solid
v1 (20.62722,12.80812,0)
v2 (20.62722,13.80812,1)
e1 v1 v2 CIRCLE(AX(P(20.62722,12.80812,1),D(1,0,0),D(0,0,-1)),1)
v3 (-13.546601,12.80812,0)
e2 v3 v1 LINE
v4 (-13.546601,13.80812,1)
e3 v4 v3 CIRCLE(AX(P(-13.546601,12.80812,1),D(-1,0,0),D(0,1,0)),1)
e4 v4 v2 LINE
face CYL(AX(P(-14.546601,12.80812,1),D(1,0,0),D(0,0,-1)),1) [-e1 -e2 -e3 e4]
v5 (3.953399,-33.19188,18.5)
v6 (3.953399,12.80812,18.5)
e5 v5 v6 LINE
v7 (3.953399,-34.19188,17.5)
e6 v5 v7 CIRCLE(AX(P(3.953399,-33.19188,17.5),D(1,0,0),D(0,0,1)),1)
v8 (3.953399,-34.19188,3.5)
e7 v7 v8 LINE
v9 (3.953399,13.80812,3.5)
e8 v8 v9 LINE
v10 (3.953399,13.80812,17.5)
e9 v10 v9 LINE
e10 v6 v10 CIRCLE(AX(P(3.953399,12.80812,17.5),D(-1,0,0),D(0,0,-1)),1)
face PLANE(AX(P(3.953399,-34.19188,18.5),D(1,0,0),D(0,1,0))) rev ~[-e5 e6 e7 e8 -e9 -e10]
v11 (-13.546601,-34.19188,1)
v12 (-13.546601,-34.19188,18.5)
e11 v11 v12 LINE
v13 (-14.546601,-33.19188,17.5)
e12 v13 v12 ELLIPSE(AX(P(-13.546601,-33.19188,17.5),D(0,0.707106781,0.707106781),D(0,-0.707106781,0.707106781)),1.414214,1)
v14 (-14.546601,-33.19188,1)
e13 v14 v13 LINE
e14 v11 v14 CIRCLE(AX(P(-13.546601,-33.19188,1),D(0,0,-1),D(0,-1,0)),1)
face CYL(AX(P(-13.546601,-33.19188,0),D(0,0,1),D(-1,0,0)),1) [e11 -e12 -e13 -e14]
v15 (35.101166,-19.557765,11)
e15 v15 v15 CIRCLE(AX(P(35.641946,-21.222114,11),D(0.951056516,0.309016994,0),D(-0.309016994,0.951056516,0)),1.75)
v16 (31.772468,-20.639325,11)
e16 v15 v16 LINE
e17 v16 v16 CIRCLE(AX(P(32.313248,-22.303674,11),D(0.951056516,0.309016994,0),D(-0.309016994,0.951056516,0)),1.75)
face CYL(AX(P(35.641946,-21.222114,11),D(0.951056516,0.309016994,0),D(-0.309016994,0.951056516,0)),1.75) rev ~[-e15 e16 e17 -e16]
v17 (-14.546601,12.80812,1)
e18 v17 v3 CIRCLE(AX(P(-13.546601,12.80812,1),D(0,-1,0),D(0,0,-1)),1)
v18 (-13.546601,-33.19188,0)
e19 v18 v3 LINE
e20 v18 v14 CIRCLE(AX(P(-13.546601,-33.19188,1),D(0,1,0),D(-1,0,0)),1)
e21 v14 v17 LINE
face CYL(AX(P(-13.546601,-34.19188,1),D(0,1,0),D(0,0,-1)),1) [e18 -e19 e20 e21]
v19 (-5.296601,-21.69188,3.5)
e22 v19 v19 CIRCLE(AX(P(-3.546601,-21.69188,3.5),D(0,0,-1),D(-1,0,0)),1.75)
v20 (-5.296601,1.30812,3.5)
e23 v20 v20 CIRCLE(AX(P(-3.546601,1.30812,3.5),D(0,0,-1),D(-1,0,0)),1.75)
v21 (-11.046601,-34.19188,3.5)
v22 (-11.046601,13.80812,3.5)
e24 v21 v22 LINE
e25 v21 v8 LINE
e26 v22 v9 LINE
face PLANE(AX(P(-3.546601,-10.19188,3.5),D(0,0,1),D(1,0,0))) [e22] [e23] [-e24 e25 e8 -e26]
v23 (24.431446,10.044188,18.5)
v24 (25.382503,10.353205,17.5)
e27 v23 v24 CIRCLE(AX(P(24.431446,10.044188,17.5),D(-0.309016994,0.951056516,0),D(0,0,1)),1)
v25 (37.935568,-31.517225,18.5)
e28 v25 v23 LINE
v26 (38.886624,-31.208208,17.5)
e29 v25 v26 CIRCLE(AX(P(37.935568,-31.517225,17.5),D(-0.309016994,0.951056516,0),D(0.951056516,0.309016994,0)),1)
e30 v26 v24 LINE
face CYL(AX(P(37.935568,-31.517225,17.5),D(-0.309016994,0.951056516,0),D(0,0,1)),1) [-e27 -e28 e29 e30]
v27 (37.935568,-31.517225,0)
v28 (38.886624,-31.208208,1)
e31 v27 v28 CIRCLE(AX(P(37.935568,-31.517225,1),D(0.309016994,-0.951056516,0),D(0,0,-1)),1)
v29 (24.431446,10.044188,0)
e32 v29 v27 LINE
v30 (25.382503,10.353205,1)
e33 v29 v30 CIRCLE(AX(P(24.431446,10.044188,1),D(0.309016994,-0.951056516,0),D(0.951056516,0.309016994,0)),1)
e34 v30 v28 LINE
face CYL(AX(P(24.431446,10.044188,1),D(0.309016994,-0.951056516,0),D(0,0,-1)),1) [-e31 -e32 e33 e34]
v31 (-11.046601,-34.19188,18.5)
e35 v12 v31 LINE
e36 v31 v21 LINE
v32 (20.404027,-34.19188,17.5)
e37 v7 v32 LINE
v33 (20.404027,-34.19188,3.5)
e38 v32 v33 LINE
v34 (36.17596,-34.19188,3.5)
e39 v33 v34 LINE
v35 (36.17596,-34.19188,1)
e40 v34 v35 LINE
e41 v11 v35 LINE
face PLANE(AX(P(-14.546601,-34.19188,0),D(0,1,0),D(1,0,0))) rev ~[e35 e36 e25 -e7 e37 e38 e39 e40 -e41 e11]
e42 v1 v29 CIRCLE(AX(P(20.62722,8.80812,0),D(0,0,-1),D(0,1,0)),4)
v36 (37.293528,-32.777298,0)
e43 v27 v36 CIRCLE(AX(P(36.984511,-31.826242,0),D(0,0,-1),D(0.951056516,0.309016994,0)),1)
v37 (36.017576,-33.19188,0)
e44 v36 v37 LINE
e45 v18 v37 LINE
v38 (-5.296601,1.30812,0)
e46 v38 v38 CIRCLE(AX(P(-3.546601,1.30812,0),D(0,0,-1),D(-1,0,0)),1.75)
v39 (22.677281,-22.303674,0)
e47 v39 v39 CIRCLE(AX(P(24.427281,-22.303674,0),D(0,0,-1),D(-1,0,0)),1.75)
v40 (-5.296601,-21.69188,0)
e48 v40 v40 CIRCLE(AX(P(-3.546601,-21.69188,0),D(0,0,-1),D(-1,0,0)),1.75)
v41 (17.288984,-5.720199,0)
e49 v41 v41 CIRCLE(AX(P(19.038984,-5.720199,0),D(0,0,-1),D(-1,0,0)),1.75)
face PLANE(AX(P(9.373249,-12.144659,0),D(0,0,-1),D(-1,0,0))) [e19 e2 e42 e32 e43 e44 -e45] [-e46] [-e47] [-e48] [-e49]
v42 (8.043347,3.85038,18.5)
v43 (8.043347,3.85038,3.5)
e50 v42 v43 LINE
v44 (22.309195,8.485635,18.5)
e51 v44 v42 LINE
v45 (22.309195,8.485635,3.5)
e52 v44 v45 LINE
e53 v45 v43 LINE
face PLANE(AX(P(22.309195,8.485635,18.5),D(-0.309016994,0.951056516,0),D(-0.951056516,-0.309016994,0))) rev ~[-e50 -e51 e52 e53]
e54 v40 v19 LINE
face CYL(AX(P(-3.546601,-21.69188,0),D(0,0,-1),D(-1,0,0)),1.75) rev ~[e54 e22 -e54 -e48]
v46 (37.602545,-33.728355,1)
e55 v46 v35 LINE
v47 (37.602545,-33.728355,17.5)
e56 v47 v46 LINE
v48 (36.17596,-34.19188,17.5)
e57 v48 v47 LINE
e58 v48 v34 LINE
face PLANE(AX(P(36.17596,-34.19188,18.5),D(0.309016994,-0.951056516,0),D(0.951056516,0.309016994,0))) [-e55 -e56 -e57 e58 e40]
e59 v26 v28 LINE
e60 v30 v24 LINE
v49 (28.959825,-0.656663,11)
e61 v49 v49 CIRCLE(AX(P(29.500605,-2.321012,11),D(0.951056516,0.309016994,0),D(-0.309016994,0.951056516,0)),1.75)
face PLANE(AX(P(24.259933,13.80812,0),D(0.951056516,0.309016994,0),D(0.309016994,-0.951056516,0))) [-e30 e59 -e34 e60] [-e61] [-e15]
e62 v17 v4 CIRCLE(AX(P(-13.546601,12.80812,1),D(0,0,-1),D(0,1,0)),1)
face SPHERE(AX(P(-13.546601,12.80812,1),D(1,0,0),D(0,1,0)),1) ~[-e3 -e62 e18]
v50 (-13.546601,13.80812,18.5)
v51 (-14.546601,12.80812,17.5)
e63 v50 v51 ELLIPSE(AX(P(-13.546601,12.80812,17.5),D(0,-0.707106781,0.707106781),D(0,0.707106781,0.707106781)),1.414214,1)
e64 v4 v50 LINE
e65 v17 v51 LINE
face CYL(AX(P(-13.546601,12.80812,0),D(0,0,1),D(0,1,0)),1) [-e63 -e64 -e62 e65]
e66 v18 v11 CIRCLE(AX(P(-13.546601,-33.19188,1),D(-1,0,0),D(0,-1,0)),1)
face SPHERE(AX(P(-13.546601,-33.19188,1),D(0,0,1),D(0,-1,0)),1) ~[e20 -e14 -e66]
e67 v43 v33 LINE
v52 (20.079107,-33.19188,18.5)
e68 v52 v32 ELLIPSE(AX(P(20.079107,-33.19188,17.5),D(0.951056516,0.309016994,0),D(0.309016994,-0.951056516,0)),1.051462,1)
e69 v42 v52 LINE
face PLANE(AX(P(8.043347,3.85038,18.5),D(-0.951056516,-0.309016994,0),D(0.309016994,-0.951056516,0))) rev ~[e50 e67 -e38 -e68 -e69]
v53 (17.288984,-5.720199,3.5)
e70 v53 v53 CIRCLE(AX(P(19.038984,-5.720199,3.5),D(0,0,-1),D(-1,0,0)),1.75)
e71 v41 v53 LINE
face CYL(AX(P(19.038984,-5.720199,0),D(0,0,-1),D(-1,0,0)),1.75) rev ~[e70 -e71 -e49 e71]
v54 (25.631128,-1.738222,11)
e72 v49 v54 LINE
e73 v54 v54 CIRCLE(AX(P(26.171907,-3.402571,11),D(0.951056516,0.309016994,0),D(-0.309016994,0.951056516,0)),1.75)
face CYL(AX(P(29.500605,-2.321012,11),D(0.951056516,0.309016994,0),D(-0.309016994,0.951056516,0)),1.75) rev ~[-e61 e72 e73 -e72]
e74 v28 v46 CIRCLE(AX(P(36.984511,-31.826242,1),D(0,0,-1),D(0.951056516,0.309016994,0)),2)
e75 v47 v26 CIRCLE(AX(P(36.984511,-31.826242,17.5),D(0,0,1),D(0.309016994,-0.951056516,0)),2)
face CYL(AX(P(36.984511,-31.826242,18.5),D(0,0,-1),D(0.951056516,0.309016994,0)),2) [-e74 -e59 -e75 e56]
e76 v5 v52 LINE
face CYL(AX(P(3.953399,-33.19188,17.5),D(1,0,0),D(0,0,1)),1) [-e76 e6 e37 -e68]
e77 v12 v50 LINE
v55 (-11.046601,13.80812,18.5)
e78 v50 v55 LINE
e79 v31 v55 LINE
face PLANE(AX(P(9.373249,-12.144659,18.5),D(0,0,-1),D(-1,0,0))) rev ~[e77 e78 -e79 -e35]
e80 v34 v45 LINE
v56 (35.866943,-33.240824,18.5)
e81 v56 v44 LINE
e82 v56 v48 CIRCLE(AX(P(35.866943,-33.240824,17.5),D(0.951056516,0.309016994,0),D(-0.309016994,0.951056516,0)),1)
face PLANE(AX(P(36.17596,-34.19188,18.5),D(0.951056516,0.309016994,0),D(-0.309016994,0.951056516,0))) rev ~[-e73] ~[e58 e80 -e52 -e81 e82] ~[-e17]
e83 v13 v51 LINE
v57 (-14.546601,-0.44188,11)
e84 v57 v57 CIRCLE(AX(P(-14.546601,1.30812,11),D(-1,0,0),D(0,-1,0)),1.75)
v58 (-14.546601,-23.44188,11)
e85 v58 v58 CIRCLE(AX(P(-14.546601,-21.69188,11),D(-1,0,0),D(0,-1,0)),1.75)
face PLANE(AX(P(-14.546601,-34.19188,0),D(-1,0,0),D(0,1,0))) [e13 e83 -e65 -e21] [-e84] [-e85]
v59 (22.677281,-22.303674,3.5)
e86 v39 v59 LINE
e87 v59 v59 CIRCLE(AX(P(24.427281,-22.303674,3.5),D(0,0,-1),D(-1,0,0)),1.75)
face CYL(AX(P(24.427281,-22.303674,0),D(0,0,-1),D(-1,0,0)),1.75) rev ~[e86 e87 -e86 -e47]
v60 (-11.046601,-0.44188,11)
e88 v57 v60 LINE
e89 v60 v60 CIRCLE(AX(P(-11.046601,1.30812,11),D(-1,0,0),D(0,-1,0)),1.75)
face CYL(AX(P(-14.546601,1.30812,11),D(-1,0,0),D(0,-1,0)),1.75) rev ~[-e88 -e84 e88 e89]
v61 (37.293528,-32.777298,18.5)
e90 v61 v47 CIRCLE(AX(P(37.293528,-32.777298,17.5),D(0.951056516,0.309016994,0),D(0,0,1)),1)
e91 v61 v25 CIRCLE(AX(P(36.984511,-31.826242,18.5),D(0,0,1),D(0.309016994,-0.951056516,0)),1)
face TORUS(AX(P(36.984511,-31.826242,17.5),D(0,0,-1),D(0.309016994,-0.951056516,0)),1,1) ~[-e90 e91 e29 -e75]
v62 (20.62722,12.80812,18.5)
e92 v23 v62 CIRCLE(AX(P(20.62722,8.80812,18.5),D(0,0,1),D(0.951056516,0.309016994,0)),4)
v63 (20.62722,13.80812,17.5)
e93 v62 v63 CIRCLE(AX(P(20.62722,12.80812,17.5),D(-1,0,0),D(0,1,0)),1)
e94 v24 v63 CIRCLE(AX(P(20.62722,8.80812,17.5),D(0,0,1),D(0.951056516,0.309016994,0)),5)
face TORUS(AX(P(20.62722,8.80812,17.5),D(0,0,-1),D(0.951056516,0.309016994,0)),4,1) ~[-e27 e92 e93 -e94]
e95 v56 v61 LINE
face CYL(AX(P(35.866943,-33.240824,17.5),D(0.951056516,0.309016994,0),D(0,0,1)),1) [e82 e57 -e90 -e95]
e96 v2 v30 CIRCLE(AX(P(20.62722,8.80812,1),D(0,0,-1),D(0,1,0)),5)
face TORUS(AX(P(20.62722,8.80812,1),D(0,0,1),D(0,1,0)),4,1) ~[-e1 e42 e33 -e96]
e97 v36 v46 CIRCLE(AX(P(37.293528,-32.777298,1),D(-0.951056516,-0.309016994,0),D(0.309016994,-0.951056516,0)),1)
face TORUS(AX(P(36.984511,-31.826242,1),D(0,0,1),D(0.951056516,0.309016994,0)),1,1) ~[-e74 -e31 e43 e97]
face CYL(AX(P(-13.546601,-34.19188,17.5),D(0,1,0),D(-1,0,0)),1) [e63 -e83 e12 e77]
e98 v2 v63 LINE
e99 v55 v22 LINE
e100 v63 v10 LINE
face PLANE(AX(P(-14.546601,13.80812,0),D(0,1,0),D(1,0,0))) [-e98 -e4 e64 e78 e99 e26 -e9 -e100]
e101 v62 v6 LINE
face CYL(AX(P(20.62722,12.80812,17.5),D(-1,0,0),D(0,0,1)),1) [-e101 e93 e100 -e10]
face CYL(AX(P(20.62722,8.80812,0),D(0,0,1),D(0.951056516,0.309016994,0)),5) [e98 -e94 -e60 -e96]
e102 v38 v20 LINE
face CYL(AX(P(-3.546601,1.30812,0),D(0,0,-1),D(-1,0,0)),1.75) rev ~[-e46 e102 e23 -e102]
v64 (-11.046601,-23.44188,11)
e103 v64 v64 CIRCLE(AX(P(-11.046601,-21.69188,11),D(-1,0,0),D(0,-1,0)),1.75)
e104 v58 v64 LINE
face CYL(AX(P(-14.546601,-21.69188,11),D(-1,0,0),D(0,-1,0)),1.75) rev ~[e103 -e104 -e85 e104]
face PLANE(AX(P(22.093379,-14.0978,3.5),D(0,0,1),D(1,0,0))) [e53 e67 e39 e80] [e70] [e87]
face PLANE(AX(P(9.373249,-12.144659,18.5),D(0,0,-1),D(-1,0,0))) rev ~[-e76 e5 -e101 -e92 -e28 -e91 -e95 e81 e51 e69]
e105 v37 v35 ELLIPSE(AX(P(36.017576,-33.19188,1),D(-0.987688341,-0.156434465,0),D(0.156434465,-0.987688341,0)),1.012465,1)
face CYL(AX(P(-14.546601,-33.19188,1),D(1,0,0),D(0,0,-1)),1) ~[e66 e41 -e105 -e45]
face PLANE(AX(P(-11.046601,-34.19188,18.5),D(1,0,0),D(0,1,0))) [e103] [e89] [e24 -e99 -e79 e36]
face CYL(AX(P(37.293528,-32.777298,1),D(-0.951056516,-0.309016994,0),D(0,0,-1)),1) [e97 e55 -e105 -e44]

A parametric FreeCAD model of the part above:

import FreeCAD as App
import Part
import Sketcher

V = App.Vector
Q = App.Units.Quantity


def edges_at(feature, points):
    """Names of the edges that pass closest to the given points."""
    edges = feature.Shape.Edges
    near = lambda p: min(range(len(edges)), key=lambda i: edges[i].distToShape(Part.Vertex(*p))[0])
    return sorted({f"Edge{near(p) + 1}" for p in points})

doc = App.newDocument("Part")
body = doc.addObject("PartDesign::Body", "Body")

# Sketch on XY plane
sketch1 = body.newObject("Sketcher::SketchObject", "Sketch")
sketch1.AttachmentSupport = (doc.getObject("XY_Plane"), [""])
sketch1.MapMode = "FlatFace"
sketch1.addGeometry([
    Part.LineSegment(V(40, -34, 0), V(24, 14, 0)),
    Part.LineSegment(V(24, 14, 0), V(-15, 14, 0)),
    Part.LineSegment(V(-15, 14, 0), V(-15, -34, 0)),
    Part.LineSegment(V(-15, -34, 0), V(40, -34, 0)),
], False)
sketch1.addConstraint([
    Sketcher.Constraint("Coincident", 0, 2, 1, 1),
    Sketcher.Constraint("Coincident", 1, 2, 2, 1),
    Sketcher.Constraint("Coincident", 2, 2, 3, 1),
    Sketcher.Constraint("Coincident", 3, 2, 0, 1),
    Sketcher.Constraint("Horizontal", 1),
    Sketcher.Constraint("Vertical", 2),
    Sketcher.Constraint("Horizontal", 3),
    Sketcher.Constraint("DistanceY", 2, 2, 2, 1, Q("48 mm")),
    Sketcher.Constraint("Angle", 0, Q("108 deg")),
    Sketcher.Constraint("DistanceX", 3, 1, 3, 2, Q("54.402679 mm")),
    Sketcher.Constraint("DistanceX", 1, 2, -1, 1, Q("14.546601 mm")),
    Sketcher.Constraint("DistanceY", -1, 1, 0, 2, Q("13.80812 mm")),
])
pad1 = body.newObject("PartDesign::Pad", "Pad")
pad1.Profile = sketch1
pad1.Length = 18.5

# Sketch on XY plane
sketch2 = body.newObject("Sketcher::SketchObject", "Sketch001")
sketch2.AttachmentSupport = (doc.getObject("XY_Plane"), [""])
sketch2.MapMode = "FlatFace"
sketch2.AttachmentOffset = App.Placement(V(0, 0, 18.5), App.Rotation())
sketch2.addGeometry([
    Part.LineSegment(V(-11, 14, 0), V(-11, -34, 0)),  # 0
    Part.LineSegment(V(-11, -34, 0), V(4, -34, 0)),  # 1
    Part.LineSegment(V(4, -34, 0), V(4, 14, 0)),  # 2
    Part.LineSegment(V(4, 14, 0), V(-11, 14, 0)),  # 3
    Part.LineSegment(V(36, -34, 0), V(22, 8, 0)),  # 4
    Part.LineSegment(V(22, 8, 0), V(8, 4, 0)),  # 5
    Part.LineSegment(V(8, 4, 0), V(20, -34, 0)),  # 6
    Part.LineSegment(V(20, -34, 0), V(36, -34, 0)),  # 7
], False)
sketch2.addConstraint([
    Sketcher.Constraint("Coincident", 0, 2, 1, 1),
    Sketcher.Constraint("Coincident", 1, 2, 2, 1),
    Sketcher.Constraint("Coincident", 2, 2, 3, 1),
    Sketcher.Constraint("Coincident", 3, 2, 0, 1),
    Sketcher.Constraint("Coincident", 4, 2, 5, 1),
    Sketcher.Constraint("Coincident", 5, 2, 6, 1),
    Sketcher.Constraint("Coincident", 6, 2, 7, 1),
    Sketcher.Constraint("Coincident", 7, 2, 4, 1),
    Sketcher.Constraint("Vertical", 0),
    Sketcher.Constraint("Horizontal", 1),
    Sketcher.Constraint("Vertical", 2),
    Sketcher.Constraint("Horizontal", 3),
    Sketcher.Constraint("Horizontal", 7),
    Sketcher.Constraint("Perpendicular", 4, 5),
    Sketcher.Constraint("Perpendicular", 5, 6),
    Sketcher.Constraint("Horizontal", 1, 2, 6, 2),
    Sketcher.Constraint("DistanceX", 1, 1, 1, 2, Q("15 mm")),
    Sketcher.Constraint("DistanceY", 0, 2, 0, 1, Q("48 mm")),
    Sketcher.Constraint("Angle", 4, Q("108 deg")),
    Sketcher.Constraint("Distance", 5, Q("15 mm")),
    Sketcher.Constraint("Distance", 6, Q("40 mm")),
    Sketcher.Constraint("DistanceX", 0, 2, -1, 1, Q("11.046601 mm")),
    Sketcher.Constraint("DistanceY", 0, 2, -1, 1, Q("34.19188 mm")),
    Sketcher.Constraint("DistanceX", -1, 1, 7, 2, Q("36.17596 mm")),
])
pocket1 = body.newObject("PartDesign::Pocket", "Pocket")
pocket1.Profile = sketch2
pocket1.Length = 15

# Sketch on an angled plane
sketch3 = body.newObject("Sketcher::SketchObject", "Sketch002")
sketch3.Placement = App.Placement(V(26.00142, 8.448373, 0), App.Rotation(V(0, 0, -1), V(-0.309016994, 0.951056516, 0), V(0.951056516, 0.309016994, 0), "ZXY"))
sketch3.addGeometry([
    Part.Circle(V(-11, -31.2, 0), V(0, 0, 1), 1.8),
    Part.Circle(V(-11, -11.3, 0), V(0, 0, 1), 1.8),
], False)
sketch3.addConstraint([
    Sketcher.Constraint("Equal", 0, 1),
    Sketcher.Constraint("Vertical", 0, 3, 1, 3),
    Sketcher.Constraint("Diameter", 0, Q("3.5 mm")),
    Sketcher.Constraint("DistanceX", 0, 3, -1, 1, Q("11 mm")),
    Sketcher.Constraint("DistanceY", 1, 3, -1, 1, Q("11.323602 mm")),
    Sketcher.Constraint("DistanceY", 0, 3, -1, 1, Q("31.197397 mm")),
])
pocket2 = body.newObject("PartDesign::Pocket", "Pocket001")
pocket2.Profile = sketch3
pocket2.Length = 3.5

# Sketch on XY plane
sketch4 = body.newObject("Sketcher::SketchObject", "Sketch003")
sketch4.AttachmentSupport = (doc.getObject("XY_Plane"), [""])
sketch4.MapMode = "FlatFace"
sketch4.addGeometry([
    Part.Circle(V(24.4, -22.3, 0), V(0, 0, 1), 1.8),
    Part.Circle(V(19, -5.7, 0), V(0, 0, 1), 1.8),
    Part.Circle(V(-3.5, 1.3, 0), V(0, 0, 1), 1.8),
    Part.Circle(V(-3.5, -21.7, 0), V(0, 0, 1), 1.8),
], False)
sketch4.addConstraint([
    Sketcher.Constraint("Equal", 0, 1),
    Sketcher.Constraint("Equal", 1, 2),
    Sketcher.Constraint("Equal", 2, 3),
    Sketcher.Constraint("Vertical", 2, 3, 3, 3),
    Sketcher.Constraint("Diameter", 0, Q("3.5 mm")),
    Sketcher.Constraint("DistanceY", 3, 3, 2, 3, Q("23 mm")),
    Sketcher.Constraint("DistanceY", 1, 3, -1, 1, Q("5.720199 mm")),
    Sketcher.Constraint("DistanceX", 2, 3, -1, 1, Q("3.546601 mm")),
    Sketcher.Constraint("DistanceX", -1, 1, 0, 3, Q("24.427281 mm")),
    Sketcher.Constraint("DistanceY", -1, 1, 2, 3, Q("1.30812 mm")),
    Sketcher.Constraint("DistanceY", 0, 3, -1, 1, Q("22.303674 mm")),
    Sketcher.Constraint("DistanceX", -1, 1, 1, 3, Q("19.038984 mm")),
])
pocket3 = body.newObject("PartDesign::Pocket", "Pocket002")
pocket3.Profile = sketch4
pocket3.Length = 4
pocket3.Reversed = True

# Sketch on YZ plane
sketch5 = body.newObject("Sketcher::SketchObject", "Sketch004")
sketch5.AttachmentSupport = (doc.getObject("YZ_Plane"), [""])
sketch5.MapMode = "FlatFace"
sketch5.AttachmentOffset = App.Placement(V(0, 0, -14.546601), App.Rotation())
sketch5.addGeometry([
    Part.Circle(V(-21.7, 11, 0), V(0, 0, 1), 1.8),
    Part.Circle(V(1.3, 11, 0), V(0, 0, 1), 1.8),
], False)
sketch5.addConstraint([
    Sketcher.Constraint("Equal", 0, 1),
    Sketcher.Constraint("Horizontal", 0, 3, 1, 3),
    Sketcher.Constraint("Diameter", 0, Q("3.5 mm")),
    Sketcher.Constraint("DistanceY", -1, 1, 0, 3, Q("11 mm")),
    Sketcher.Constraint("DistanceX", 0, 3, 1, 3, Q("23 mm")),
    Sketcher.Constraint("DistanceX", 0, 3, -1, 1, Q("21.69188 mm")),
])
pocket4 = body.newObject("PartDesign::Pocket", "Pocket003")
pocket4.Profile = sketch5
pocket4.Length = 4
pocket4.Reversed = True

# Sketch on XY plane
sketch6 = body.newObject("Sketcher::SketchObject", "Sketch005")
sketch6.AttachmentSupport = (doc.getObject("XY_Plane"), [""])
sketch6.MapMode = "FlatFace"
sketch6.AttachmentOffset = App.Placement(V(0, 0, 18.5), App.Rotation())
sketch6.addGeometry([
    Part.LineSegment(V(39.5, -33.1, 0), V(36.2, -34.2, 0)),
    Part.LineSegment(V(36.2, -34.2, 0), V(39.9, -34.2, 0)),
    Part.LineSegment(V(39.9, -34.2, 0), V(39.5, -33.1, 0)),
], False)
sketch6.addConstraint([
    Sketcher.Constraint("Coincident", 0, 2, 1, 1),
    Sketcher.Constraint("Coincident", 1, 2, 2, 1),
    Sketcher.Constraint("Coincident", 2, 2, 0, 1),
    Sketcher.Constraint("Horizontal", 1),
    Sketcher.Constraint("Perpendicular", 0, 2),
    Sketcher.Constraint("Angle", 0, Q("-162 deg")),
    Sketcher.Constraint("Distance", 0, Q("3.5 mm")),
    Sketcher.Constraint("DistanceX", -1, 1, 0, 2, Q("36.17596 mm")),
    Sketcher.Constraint("DistanceY", 0, 2, -1, 1, Q("34.19188 mm")),
])
pocket5 = body.newObject("PartDesign::Pocket", "Pocket004")
pocket5.Profile = sketch6
pocket5.Length = 19
doc.recompute()

fillet = body.newObject("PartDesign::Fillet", "Fillet")
fillet.Base = (pocket5, edges_at(pocket5, [(39.505, -33.11, 9.25)]))
fillet.Radius = 2
doc.recompute()

fillet2 = body.newObject("PartDesign::Fillet", "Fillet001")
fillet2.Base = (fillet, edges_at(fillet, [(24.26, 13.808, 9.25)]))
fillet2.Radius = 5
doc.recompute()

fillet3 = body.newObject("PartDesign::Fillet", "Fillet002")
fillet3.Base = (fillet2, edges_at(fillet2, [
    (36.889, -33.96, 18.5),
    (38.767, -32.734, 18.5),
    (32.135, -10.428, 18.5),
    (23.566, 12.853, 18.5),
    (36.889, -33.96, 0),
    (38.767, -32.734, 0),
    (32.135, -10.428, 0),
    (23.566, 12.853, 0),
    (12.179, -34.192, 18.5),
    (12.29, 13.808, 18.5),
    (-14.547, -34.192, 9.25),
    (-14.547, 13.808, 9.25),
    (-14.547, -10.192, 18.5),
    (10.815, -34.192, 0),
    (3.04, 13.808, 0),
    (-14.547, -10.192, 0),
]))
fillet3.Radius = 1

doc.recompute()
